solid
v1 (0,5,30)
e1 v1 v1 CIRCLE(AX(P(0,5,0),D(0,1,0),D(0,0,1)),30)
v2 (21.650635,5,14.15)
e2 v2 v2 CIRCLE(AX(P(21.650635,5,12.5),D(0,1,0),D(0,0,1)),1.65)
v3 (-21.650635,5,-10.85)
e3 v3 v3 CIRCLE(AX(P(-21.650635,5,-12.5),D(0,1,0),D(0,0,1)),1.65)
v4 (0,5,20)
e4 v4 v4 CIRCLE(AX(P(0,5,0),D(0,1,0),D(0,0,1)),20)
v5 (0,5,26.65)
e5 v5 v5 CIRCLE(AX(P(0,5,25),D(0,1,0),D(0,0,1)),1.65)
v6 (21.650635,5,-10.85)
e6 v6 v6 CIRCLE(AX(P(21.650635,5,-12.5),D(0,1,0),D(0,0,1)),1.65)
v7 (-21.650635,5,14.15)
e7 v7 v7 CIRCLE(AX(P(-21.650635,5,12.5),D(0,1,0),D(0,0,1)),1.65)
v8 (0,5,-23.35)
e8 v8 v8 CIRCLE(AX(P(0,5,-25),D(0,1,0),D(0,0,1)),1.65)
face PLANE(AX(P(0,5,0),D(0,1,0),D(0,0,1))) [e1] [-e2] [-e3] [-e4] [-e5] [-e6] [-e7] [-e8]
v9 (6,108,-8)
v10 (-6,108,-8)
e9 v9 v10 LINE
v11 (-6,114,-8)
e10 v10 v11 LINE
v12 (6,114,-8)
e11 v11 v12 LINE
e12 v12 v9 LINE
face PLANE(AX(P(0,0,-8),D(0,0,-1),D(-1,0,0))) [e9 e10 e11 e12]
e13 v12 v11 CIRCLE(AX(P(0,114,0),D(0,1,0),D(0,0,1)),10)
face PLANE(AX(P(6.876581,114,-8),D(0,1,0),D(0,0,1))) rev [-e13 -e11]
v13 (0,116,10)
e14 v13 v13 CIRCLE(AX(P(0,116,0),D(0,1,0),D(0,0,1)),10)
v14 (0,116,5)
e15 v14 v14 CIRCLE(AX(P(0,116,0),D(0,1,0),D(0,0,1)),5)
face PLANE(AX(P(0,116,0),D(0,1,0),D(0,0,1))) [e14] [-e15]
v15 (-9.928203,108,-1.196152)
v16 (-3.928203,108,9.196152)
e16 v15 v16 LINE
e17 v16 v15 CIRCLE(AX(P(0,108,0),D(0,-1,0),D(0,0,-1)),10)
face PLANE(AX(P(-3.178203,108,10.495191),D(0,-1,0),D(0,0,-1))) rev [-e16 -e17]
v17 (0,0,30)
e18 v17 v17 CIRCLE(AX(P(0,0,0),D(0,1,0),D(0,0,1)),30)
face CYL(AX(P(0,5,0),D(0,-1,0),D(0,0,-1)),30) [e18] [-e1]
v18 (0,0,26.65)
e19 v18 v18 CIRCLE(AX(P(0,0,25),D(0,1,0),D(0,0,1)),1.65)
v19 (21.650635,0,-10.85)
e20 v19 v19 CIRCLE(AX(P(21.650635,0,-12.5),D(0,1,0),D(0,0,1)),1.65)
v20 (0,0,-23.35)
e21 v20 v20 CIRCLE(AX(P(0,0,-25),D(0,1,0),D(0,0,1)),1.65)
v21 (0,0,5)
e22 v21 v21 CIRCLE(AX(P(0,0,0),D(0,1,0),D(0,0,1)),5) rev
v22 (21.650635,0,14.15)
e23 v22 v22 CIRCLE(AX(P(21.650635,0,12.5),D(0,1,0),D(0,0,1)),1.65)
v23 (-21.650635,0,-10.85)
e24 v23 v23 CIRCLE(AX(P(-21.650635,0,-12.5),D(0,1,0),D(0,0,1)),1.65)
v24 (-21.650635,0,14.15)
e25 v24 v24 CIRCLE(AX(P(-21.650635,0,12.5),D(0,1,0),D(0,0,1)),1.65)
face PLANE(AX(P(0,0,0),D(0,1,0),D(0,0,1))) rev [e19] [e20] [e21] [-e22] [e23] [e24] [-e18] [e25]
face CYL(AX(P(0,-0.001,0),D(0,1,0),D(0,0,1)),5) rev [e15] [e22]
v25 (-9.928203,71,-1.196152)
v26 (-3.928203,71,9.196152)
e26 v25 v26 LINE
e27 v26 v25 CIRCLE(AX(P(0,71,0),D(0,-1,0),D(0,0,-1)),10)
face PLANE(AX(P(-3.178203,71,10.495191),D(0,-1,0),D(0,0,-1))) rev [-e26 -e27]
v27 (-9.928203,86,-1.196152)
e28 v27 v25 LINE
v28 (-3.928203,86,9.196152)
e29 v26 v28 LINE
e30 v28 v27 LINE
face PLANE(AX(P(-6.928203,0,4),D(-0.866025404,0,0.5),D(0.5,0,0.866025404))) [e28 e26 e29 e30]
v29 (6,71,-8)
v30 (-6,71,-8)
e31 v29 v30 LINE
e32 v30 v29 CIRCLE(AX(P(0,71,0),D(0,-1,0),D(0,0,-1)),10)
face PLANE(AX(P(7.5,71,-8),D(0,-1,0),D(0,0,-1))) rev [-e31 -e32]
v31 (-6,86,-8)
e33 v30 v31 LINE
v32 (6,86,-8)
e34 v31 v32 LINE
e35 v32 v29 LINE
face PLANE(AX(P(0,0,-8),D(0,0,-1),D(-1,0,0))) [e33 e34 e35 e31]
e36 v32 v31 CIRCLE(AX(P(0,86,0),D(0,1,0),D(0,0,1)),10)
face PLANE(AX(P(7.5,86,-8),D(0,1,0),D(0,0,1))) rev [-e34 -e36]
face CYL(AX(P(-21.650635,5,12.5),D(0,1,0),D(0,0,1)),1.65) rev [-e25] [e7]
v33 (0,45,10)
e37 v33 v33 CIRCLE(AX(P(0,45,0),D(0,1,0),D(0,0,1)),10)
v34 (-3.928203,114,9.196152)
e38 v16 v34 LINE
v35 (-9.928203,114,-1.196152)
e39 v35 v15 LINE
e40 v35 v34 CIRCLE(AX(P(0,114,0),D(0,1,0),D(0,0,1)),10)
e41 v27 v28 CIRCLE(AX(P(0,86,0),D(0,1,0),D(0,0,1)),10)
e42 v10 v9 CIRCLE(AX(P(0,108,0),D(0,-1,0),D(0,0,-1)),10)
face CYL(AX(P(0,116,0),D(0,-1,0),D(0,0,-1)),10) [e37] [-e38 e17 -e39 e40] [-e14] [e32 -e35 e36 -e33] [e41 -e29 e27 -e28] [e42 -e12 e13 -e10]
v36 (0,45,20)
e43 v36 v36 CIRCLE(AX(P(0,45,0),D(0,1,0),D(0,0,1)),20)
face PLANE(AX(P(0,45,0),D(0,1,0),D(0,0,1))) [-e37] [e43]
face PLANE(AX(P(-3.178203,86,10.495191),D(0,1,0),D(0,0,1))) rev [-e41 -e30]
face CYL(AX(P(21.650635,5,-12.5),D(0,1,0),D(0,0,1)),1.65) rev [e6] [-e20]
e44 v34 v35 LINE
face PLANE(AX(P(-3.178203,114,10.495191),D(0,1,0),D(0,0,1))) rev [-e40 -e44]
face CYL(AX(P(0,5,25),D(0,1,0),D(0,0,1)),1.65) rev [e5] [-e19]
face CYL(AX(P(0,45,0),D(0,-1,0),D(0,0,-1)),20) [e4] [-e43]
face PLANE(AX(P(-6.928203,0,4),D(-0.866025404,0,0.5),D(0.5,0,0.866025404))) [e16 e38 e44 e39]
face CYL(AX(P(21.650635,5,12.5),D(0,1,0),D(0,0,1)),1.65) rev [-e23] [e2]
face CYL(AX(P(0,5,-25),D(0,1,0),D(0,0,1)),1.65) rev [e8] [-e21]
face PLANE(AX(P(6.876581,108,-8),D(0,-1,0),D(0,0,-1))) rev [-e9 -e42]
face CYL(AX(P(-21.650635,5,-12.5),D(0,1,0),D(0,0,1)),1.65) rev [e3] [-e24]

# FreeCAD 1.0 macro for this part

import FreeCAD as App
import Part
import Sketcher
from FreeCAD import Vector
Q = App.Units.Quantity


def add_polygon(sketch, points):
    """Adds a closed chain of lines whose ends are joined by coincident constraints."""
    first, n = sketch.GeometryCount, len(points)
    for a, b in zip(points, points[1:] + points[:1]):
        sketch.addGeometry(Part.LineSegment(App.Vector(*a, 0), App.Vector(*b, 0)), False)
    for i in range(n):
        sketch.addConstraint(Sketcher.Constraint("Coincident", first + i, 2, first + (i + 1) % n, 1))

doc = App.newDocument("Part")
body = doc.addObject("PartDesign::Body", "Body")

sketch1 = doc.addObject("Sketcher::SketchObject", "Sketch")
body.addObject(sketch1)
sketch1.AttachmentSupport = (doc.XZ_Plane, [""])
sketch1.MapMode = "FlatFace"
sketch1.addGeometry(Part.Circle(Vector(0, 0, 0), Vector(0, 0, 1), 30), False)
sketch1.addConstraint(Sketcher.Constraint("Coincident", 0, 3, -1, 1))
sketch1.addConstraint(Sketcher.Constraint("Diameter", 0, Q("60 mm")))
pad1 = doc.addObject("PartDesign::Pad", "Pad")
body.addObject(pad1)
pad1.Profile = sketch1
pad1.Length = 5
pad1.Reversed = True

sketch2 = doc.addObject("Sketcher::SketchObject", "Sketch001")
body.addObject(sketch2)
sketch2.AttachmentSupport = (doc.XZ_Plane, [""])
sketch2.MapMode = "FlatFace"
sketch2.AttachmentOffset = App.Placement(Vector(0, 0, -5), App.Rotation())
sketch2.addGeometry(Part.Circle(Vector(0, 0, 0), Vector(0, 0, 1), 20), False)
sketch2.addConstraint(Sketcher.Constraint("Coincident", 0, 3, -1, 1))
sketch2.addConstraint(Sketcher.Constraint("Diameter", 0, Q("40 mm")))
pad2 = doc.addObject("PartDesign::Pad", "Pad001")
body.addObject(pad2)
pad2.Profile = sketch2
pad2.Length = 40
pad2.Reversed = True

sketch3 = doc.addObject("Sketcher::SketchObject", "Sketch002")
body.addObject(sketch3)
sketch3.AttachmentSupport = (doc.XZ_Plane, [""])
sketch3.MapMode = "FlatFace"
sketch3.AttachmentOffset = App.Placement(Vector(0, 0, -45), App.Rotation())
sketch3.addGeometry(Part.Circle(Vector(0, 0, 0), Vector(0, 0, 1), 10), False)
sketch3.addConstraint(Sketcher.Constraint("Coincident", 0, 3, -1, 1))
sketch3.addConstraint(Sketcher.Constraint("Diameter", 0, Q("20 mm")))
pad3 = doc.addObject("PartDesign::Pad", "Pad002")
body.addObject(pad3)
pad3.Profile = sketch3
pad3.Length = 71
pad3.Reversed = True

sketch4 = doc.addObject("Sketcher::SketchObject", "Sketch003")
body.addObject(sketch4)
sketch4.AttachmentSupport = (doc.XZ_Plane, [""])
sketch4.MapMode = "FlatFace"
sketch4.AttachmentOffset = App.Placement(Vector(0, 0, -116), App.Rotation())
sketch4.addGeometry(Part.Circle(Vector(0, 0, 0), Vector(0, 0, 1), 5), False)
sketch4.addConstraint(Sketcher.Constraint("Coincident", 0, 3, -1, 1))
sketch4.addConstraint(Sketcher.Constraint("Diameter", 0, Q("10 mm")))
pocket1 = doc.addObject("PartDesign::Pocket", "Pocket")
body.addObject(pocket1)
pocket1.Profile = sketch4
pocket1.Type = "UpToFirst"
pocket1.Reversed = True

sketch5 = doc.addObject("Sketcher::SketchObject", "Sketch004")
body.addObject(sketch5)
sketch5.AttachmentSupport = (doc.XY_Plane, [""])
sketch5.MapMode = "FlatFace"
sketch5.AttachmentOffset = App.Placement(Vector(0, 0, -10), App.Rotation())
add_polygon(sketch5, [(7.5, 86), (7.5, 71), (-7.5, 71), (-7.5, 86)])
sketch5.addConstraint(Sketcher.Constraint("Vertical", 0))
sketch5.addConstraint(Sketcher.Constraint("Horizontal", 1))
sketch5.addConstraint(Sketcher.Constraint("Vertical", 2))
sketch5.addConstraint(Sketcher.Constraint("Horizontal", 3))
sketch5.addConstraint(Sketcher.Constraint("Equal", 3, 0))
sketch5.addConstraint(Sketcher.Constraint("DistanceX", 1, 2, 1, 1, Q("15 mm")))
sketch5.addConstraint(Sketcher.Constraint("DistanceY", -1, 1, 0, 2, Q("71 mm")))
sketch5.addConstraint(Sketcher.Constraint("DistanceX", -1, 1, 0, 2, Q("7.5 mm")))
pocket2 = doc.addObject("PartDesign::Pocket", "Pocket001")
body.addObject(pocket2)
pocket2.Profile = sketch5
pocket2.Length = 2
pocket2.Reversed = True

sketch6 = doc.addObject("Sketcher::SketchObject", "Sketch005")
body.addObject(sketch6)
sketch6.Placement = App.Placement(Vector(-8.660254, 0, 5), App.Rotation(Vector(0, -1, 0), Vector(0.5, 0, 0.866025404), Vector(-0.866025404, 0, 0.5), "ZXY"))
add_polygon(sketch6, [(-86, 7.5), (-86, -7.5), (-71, -7.5), (-71, 7.5)])
sketch6.addConstraint(Sketcher.Constraint("Vertical", 0))
sketch6.addConstraint(Sketcher.Constraint("Horizontal", 1))
sketch6.addConstraint(Sketcher.Constraint("Vertical", 2))
sketch6.addConstraint(Sketcher.Constraint("Horizontal", 3))
sketch6.addConstraint(Sketcher.Constraint("Equal", 3, 0))
sketch6.addConstraint(Sketcher.Constraint("DistanceX", 1, 1, 1, 2, Q("15 mm")))
sketch6.addConstraint(Sketcher.Constraint("DistanceX", 0, 2, -1, 1, Q("86 mm")))
sketch6.addConstraint(Sketcher.Constraint("DistanceY", 0, 2, -1, 1, Q("7.5 mm")))
pocket3 = doc.addObject("PartDesign::Pocket", "Pocket002")
body.addObject(pocket3)
pocket3.Profile = sketch6
pocket3.Length = 2

sketch7 = doc.addObject("Sketcher::SketchObject", "Sketch006")
body.addObject(sketch7)
sketch7.AttachmentSupport = (doc.XZ_Plane, [""])
sketch7.MapMode = "FlatFace"
sketch7.AttachmentOffset = App.Placement(Vector(0, 0, -5), App.Rotation())
sketch7.addGeometry(Part.Circle(Vector(0, -25, 0), Vector(0, 0, 1), 1.65), False)
sketch7.addGeometry(Part.Circle(Vector(21.650635, -12.5, 0), Vector(0, 0, 1), 1.65), False)
sketch7.addGeometry(Part.Circle(Vector(21.650635, 12.5, 0), Vector(0, 0, 1), 1.65), False)
sketch7.addGeometry(Part.Circle(Vector(-21.650635, -12.5, 0), Vector(0, 0, 1), 1.65), False)
sketch7.addGeometry(Part.Circle(Vector(-21.650635, 12.5, 0), Vector(0, 0, 1), 1.65), False)
sketch7.addGeometry(Part.Circle(Vector(0, 25, 0), Vector(0, 0, 1), 1.65), False)
sketch7.addConstraint(Sketcher.Constraint("Equal", 0, 1))
sketch7.addConstraint(Sketcher.Constraint("Equal", 1, 2))
sketch7.addConstraint(Sketcher.Constraint("Equal", 2, 3))
sketch7.addConstraint(Sketcher.Constraint("Equal", 3, 4))
sketch7.addConstraint(Sketcher.Constraint("Equal", 4, 5))
sketch7.addConstraint(Sketcher.Constraint("Symmetric", 2, 3, 3, 3, -1, 1))
sketch7.addConstraint(Sketcher.Constraint("Symmetric", 1, 3, 4, 3, -1, 1))
sketch7.addConstraint(Sketcher.Constraint("Symmetric", 0, 3, 5, 3, -1, 1))
sketch7.addConstraint(Sketcher.Constraint("Symmetric", 1, 3, 3, 3, -2))
sketch7.addConstraint(Sketcher.Constraint("PointOnObject", 0, 3, -2))
sketch7.addConstraint(Sketcher.Constraint("Diameter", 0, Q("3.3 mm")))
sketch7.addConstraint(Sketcher.Constraint("DistanceY", 0, 3, -1, 1, Q("25 mm")))
sketch7.addConstraint(Sketcher.Constraint("DistanceY", 1, 3, 2, 3, Q("25 mm")))
sketch7.addConstraint(Sketcher.Constraint("DistanceX", 3, 3, 1, 3, Q("43.30127 mm")))
doc.recompute()
hole = doc.addObject("PartDesign::Hole", "Hole")
body.addObject(hole)
hole.Profile = sketch7
hole.ThreadType = "None"
hole.Diameter = 3.3
hole.DepthType = "Dimension"
hole.Depth = 5
hole.DrillPoint = "Flat"
hole.Reversed = True

sketch8 = doc.addObject("Sketcher::SketchObject", "Sketch007")
body.addObject(sketch8)
sketch8.Placement = App.Placement(Vector(-8.660254, 0, 5), App.Rotation(Vector(0, -1, 0), Vector(0.5, 0, 0.866025404), Vector(-0.866025404, 0, 0.5), "ZXY"))
add_polygon(sketch8, [(-114, 7.5), (-114, -7.5), (-108, -7.5), (-108, 7.5)])
sketch8.addConstraint(Sketcher.Constraint("Vertical", 0))
sketch8.addConstraint(Sketcher.Constraint("Horizontal", 1))
sketch8.addConstraint(Sketcher.Constraint("Vertical", 2))
sketch8.addConstraint(Sketcher.Constraint("Horizontal", 3))
sketch8.addConstraint(Sketcher.Constraint("DistanceX", 1, 1, 1, 2, Q("6 mm")))
sketch8.addConstraint(Sketcher.Constraint("DistanceY", 0, 2, 0, 1, Q("15 mm")))
sketch8.addConstraint(Sketcher.Constraint("DistanceX", 0, 2, -1, 1, Q("114 mm")))
sketch8.addConstraint(Sketcher.Constraint("DistanceY", 0, 2, -1, 1, Q("7.5 mm")))
pocket4 = doc.addObject("PartDesign::Pocket", "Pocket003")
body.addObject(pocket4)
pocket4.Profile = sketch8
pocket4.Length = 2

sketch9 = doc.addObject("Sketcher::SketchObject", "Sketch008")
body.addObject(sketch9)
sketch9.AttachmentSupport = (doc.XY_Plane, [""])
sketch9.MapMode = "FlatFace"
sketch9.AttachmentOffset = App.Placement(Vector(0, 0, -10), App.Rotation())
add_polygon(sketch9, [(6.876581, 114), (6.876581, 108), (-8.123419, 108), (-8.123419, 114)])
sketch9.addConstraint(Sketcher.Constraint("Vertical", 0))
sketch9.addConstraint(Sketcher.Constraint("Horizontal", 1))
sketch9.addConstraint(Sketcher.Constraint("Vertical", 2))
sketch9.addConstraint(Sketcher.Constraint("Horizontal", 3))
sketch9.addConstraint(Sketcher.Constraint("DistanceX", 1, 2, 1, 1, Q("15 mm")))
sketch9.addConstraint(Sketcher.Constraint("DistanceY", 0, 2, 0, 1, Q("6 mm")))
sketch9.addConstraint(Sketcher.Constraint("DistanceY", -1, 1, 0, 2, Q("108 mm")))
sketch9.addConstraint(Sketcher.Constraint("DistanceX", -1, 1, 0, 2, Q("6.876581 mm")))
pocket5 = doc.addObject("PartDesign::Pocket", "Pocket004")
body.addObject(pocket5)
pocket5.Profile = sketch9
pocket5.Length = 2
pocket5.Reversed = True

doc.recompute()
